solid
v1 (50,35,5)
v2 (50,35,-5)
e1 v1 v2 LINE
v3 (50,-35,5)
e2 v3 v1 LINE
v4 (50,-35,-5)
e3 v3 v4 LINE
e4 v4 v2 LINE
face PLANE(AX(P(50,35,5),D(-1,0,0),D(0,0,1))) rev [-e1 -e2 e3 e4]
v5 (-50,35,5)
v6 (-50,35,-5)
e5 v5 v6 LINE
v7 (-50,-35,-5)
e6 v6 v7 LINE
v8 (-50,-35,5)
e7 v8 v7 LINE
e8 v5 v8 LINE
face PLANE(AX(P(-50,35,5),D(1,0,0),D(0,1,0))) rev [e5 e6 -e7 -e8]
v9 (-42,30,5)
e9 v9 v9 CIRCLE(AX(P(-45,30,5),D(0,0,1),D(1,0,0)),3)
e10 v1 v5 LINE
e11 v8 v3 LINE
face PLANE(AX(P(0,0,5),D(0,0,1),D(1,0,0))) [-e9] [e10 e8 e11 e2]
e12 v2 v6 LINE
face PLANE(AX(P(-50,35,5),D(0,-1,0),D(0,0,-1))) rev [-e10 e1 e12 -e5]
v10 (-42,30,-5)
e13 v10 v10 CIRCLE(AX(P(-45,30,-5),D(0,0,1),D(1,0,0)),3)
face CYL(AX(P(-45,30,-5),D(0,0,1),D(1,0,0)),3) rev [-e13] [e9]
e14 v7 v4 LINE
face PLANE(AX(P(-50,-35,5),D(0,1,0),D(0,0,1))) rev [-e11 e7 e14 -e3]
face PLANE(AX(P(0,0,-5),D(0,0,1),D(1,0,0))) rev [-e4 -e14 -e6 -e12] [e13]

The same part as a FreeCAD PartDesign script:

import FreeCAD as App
import Part
import Sketcher
Q = App.Units.Quantity

doc = App.newDocument("Part")
body = doc.addObject("PartDesign::Body", "Body")

# Sketch on XY plane
sketch1 = doc.addObject("Sketcher::SketchObject", "Sketch")
body.addObject(sketch1)
sketch1.AttachmentSupport = (doc.XY_Plane, [""])
sketch1.MapMode = "FlatFace"
sketch1.addGeometry(Part.LineSegment(App.Vector(-50, 35, 0), App.Vector(-50, -35, 0)), False)
sketch1.addGeometry(Part.LineSegment(App.Vector(-50, -35, 0), App.Vector(50, -35, 0)), False)
sketch1.addGeometry(Part.LineSegment(App.Vector(50, -35, 0), App.Vector(50, 35, 0)), False)
sketch1.addGeometry(Part.LineSegment(App.Vector(50, 35, 0), App.Vector(-50, 35, 0)), False)
sketch1.addConstraint(Sketcher.Constraint("Coincident", 0, 2, 1, 1))
sketch1.addConstraint(Sketcher.Constraint("Coincident", 1, 2, 2, 1))
sketch1.addConstraint(Sketcher.Constraint("Coincident", 2, 2, 3, 1))
sketch1.addConstraint(Sketcher.Constraint("Coincident", 3, 2, 0, 1))
sketch1.addConstraint(Sketcher.Constraint("Vertical", 0))
sketch1.addConstraint(Sketcher.Constraint("Horizontal", 1))
sketch1.addConstraint(Sketcher.Constraint("Vertical", 2))
sketch1.addConstraint(Sketcher.Constraint("Horizontal", 3))
sketch1.addConstraint(Sketcher.Constraint("Symmetric", 0, 2, 2, 2, -1, 1))
sketch1.addConstraint(Sketcher.Constraint("DistanceX", 1, 1, 1, 2, Q("100 mm")))
sketch1.addConstraint(Sketcher.Constraint("DistanceY", 0, 2, 0, 1, Q("70 mm")))
pad1 = doc.addObject("PartDesign::Pad", "Pad")
body.addObject(pad1)
pad1.Profile = sketch1
pad1.Length = 10
pad1.Midplane = True

# Sketch on XY plane
sketch2 = doc.addObject("Sketcher::SketchObject", "Sketch001")
body.addObject(sketch2)
sketch2.AttachmentSupport = (doc.XY_Plane, [""])
sketch2.MapMode = "FlatFace"
sketch2.AttachmentOffset = App.Placement(App.Vector(0, 0, 5), App.Rotation())
sketch2.addGeometry(Part.Circle(App.Vector(-45, 30, 0), App.Vector(0, 0, 1), 3), False)
sketch2.addConstraint(Sketcher.Constraint("Diameter", 0, Q("6 mm")))
sketch2.addConstraint(Sketcher.Constraint("DistanceX", 0, 3, -1, 1, Q("45 mm")))
sketch2.addConstraint(Sketcher.Constraint("DistanceY", -1, 1, 0, 3, Q("30 mm")))
pocket1 = doc.addObject("PartDesign::Pocket", "Pocket")
body.addObject(pocket1)
pocket1.Profile = sketch2
pocket1.Length = 10

doc.recompute()
